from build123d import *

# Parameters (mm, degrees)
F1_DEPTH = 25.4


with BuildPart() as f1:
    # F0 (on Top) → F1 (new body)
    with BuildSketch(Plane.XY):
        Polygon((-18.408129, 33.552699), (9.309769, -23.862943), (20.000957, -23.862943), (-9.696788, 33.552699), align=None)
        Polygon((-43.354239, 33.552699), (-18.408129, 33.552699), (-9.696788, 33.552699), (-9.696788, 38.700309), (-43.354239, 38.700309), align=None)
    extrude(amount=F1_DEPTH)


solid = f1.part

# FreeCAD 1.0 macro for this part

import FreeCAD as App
import Part
import Sketcher
from FreeCAD import Vector
Q = App.Units.Quantity

doc = App.newDocument("Part")
body = doc.addObject("PartDesign::Body", "Body")

# Sketch on XY plane
sketch1 = body.newObject("Sketcher::SketchObject", "Sketch")
sketch1.AttachmentSupport = (doc.getObject("XY_Plane"), [""])
sketch1.MapMode = "FlatFace"
sketch1.addGeometry(Part.LineSegment(Vector(-18, 34, 0), Vector(9, -24, 0)), False)
sketch1.addGeometry(Part.LineSegment(Vector(9, -24, 0), Vector(20, -24, 0)), False)
sketch1.addGeometry(Part.LineSegment(Vector(20, -24, 0), Vector(-10, 34, 0)), False)
sketch1.addGeometry(Part.LineSegment(Vector(-10, 34, 0), Vector(-10, 39, 0)), False)
sketch1.addGeometry(Part.LineSegment(Vector(-10, 39, 0), Vector(-43, 39, 0)), False)
sketch1.addGeometry(Part.LineSegment(Vector(-43, 39, 0), Vector(-43, 34, 0)), False)
sketch1.addGeometry(Part.LineSegment(Vector(-43, 34, 0), Vector(-18, 34, 0)), False)
sketch1.addConstraint(Sketcher.Constraint("Coincident", 0, 2, 1, 1))
sketch1.addConstraint(Sketcher.Constraint("Coincident", 1, 2, 2, 1))
sketch1.addConstraint(Sketcher.Constraint("Coincident", 2, 2, 3, 1))
sketch1.addConstraint(Sketcher.Constraint("Coincident", 3, 2, 4, 1))
sketch1.addConstraint(Sketcher.Constraint("Coincident", 4, 2, 5, 1))
sketch1.addConstraint(Sketcher.Constraint("Coincident", 5, 2, 6, 1))
sketch1.addConstraint(Sketcher.Constraint("Coincident", 6, 2, 0, 1))
sketch1.addConstraint(Sketcher.Constraint("Horizontal", 1))
sketch1.addConstraint(Sketcher.Constraint("Vertical", 3))
sketch1.addConstraint(Sketcher.Constraint("Horizontal", 4))
sketch1.addConstraint(Sketcher.Constraint("Vertical", 5))
sketch1.addConstraint(Sketcher.Constraint("Horizontal", 6))
sketch1.addConstraint(Sketcher.Constraint("Horizontal", 2, 2, 5, 2))
sketch1.addConstraint(Sketcher.Constraint("DistanceX", 4, 2, 4, 1, 33.657451))
sketch1.addConstraint(Sketcher.Constraint("DistanceX", 6, 1, 6, 2, 24.94611))
sketch1.addConstraint(Sketcher.Constraint("DistanceY", 3, 1, 3, 2, 5.14761))
sketch1.addConstraint(Sketcher.Constraint("DistanceY", -1, 1, 2, 2, 33.552699))
sketch1.addConstraint(Sketcher.Constraint("Distance", 0, 63.756081))
sketch1.addConstraint(Sketcher.Constraint("Distance", 2, 64.641411))
sketch1.addConstraint(Sketcher.Constraint("DistanceX", 1, 1, 1, 2, 10.691188))
sketch1.addConstraint(Sketcher.Constraint("DistanceX", -1, 1, 0, 2, 9.309769))
pad1 = body.newObject("PartDesign::Pad", "Pad")
pad1.Profile = sketch1
pad1.Length = Q("1 in")

doc.recompute()
